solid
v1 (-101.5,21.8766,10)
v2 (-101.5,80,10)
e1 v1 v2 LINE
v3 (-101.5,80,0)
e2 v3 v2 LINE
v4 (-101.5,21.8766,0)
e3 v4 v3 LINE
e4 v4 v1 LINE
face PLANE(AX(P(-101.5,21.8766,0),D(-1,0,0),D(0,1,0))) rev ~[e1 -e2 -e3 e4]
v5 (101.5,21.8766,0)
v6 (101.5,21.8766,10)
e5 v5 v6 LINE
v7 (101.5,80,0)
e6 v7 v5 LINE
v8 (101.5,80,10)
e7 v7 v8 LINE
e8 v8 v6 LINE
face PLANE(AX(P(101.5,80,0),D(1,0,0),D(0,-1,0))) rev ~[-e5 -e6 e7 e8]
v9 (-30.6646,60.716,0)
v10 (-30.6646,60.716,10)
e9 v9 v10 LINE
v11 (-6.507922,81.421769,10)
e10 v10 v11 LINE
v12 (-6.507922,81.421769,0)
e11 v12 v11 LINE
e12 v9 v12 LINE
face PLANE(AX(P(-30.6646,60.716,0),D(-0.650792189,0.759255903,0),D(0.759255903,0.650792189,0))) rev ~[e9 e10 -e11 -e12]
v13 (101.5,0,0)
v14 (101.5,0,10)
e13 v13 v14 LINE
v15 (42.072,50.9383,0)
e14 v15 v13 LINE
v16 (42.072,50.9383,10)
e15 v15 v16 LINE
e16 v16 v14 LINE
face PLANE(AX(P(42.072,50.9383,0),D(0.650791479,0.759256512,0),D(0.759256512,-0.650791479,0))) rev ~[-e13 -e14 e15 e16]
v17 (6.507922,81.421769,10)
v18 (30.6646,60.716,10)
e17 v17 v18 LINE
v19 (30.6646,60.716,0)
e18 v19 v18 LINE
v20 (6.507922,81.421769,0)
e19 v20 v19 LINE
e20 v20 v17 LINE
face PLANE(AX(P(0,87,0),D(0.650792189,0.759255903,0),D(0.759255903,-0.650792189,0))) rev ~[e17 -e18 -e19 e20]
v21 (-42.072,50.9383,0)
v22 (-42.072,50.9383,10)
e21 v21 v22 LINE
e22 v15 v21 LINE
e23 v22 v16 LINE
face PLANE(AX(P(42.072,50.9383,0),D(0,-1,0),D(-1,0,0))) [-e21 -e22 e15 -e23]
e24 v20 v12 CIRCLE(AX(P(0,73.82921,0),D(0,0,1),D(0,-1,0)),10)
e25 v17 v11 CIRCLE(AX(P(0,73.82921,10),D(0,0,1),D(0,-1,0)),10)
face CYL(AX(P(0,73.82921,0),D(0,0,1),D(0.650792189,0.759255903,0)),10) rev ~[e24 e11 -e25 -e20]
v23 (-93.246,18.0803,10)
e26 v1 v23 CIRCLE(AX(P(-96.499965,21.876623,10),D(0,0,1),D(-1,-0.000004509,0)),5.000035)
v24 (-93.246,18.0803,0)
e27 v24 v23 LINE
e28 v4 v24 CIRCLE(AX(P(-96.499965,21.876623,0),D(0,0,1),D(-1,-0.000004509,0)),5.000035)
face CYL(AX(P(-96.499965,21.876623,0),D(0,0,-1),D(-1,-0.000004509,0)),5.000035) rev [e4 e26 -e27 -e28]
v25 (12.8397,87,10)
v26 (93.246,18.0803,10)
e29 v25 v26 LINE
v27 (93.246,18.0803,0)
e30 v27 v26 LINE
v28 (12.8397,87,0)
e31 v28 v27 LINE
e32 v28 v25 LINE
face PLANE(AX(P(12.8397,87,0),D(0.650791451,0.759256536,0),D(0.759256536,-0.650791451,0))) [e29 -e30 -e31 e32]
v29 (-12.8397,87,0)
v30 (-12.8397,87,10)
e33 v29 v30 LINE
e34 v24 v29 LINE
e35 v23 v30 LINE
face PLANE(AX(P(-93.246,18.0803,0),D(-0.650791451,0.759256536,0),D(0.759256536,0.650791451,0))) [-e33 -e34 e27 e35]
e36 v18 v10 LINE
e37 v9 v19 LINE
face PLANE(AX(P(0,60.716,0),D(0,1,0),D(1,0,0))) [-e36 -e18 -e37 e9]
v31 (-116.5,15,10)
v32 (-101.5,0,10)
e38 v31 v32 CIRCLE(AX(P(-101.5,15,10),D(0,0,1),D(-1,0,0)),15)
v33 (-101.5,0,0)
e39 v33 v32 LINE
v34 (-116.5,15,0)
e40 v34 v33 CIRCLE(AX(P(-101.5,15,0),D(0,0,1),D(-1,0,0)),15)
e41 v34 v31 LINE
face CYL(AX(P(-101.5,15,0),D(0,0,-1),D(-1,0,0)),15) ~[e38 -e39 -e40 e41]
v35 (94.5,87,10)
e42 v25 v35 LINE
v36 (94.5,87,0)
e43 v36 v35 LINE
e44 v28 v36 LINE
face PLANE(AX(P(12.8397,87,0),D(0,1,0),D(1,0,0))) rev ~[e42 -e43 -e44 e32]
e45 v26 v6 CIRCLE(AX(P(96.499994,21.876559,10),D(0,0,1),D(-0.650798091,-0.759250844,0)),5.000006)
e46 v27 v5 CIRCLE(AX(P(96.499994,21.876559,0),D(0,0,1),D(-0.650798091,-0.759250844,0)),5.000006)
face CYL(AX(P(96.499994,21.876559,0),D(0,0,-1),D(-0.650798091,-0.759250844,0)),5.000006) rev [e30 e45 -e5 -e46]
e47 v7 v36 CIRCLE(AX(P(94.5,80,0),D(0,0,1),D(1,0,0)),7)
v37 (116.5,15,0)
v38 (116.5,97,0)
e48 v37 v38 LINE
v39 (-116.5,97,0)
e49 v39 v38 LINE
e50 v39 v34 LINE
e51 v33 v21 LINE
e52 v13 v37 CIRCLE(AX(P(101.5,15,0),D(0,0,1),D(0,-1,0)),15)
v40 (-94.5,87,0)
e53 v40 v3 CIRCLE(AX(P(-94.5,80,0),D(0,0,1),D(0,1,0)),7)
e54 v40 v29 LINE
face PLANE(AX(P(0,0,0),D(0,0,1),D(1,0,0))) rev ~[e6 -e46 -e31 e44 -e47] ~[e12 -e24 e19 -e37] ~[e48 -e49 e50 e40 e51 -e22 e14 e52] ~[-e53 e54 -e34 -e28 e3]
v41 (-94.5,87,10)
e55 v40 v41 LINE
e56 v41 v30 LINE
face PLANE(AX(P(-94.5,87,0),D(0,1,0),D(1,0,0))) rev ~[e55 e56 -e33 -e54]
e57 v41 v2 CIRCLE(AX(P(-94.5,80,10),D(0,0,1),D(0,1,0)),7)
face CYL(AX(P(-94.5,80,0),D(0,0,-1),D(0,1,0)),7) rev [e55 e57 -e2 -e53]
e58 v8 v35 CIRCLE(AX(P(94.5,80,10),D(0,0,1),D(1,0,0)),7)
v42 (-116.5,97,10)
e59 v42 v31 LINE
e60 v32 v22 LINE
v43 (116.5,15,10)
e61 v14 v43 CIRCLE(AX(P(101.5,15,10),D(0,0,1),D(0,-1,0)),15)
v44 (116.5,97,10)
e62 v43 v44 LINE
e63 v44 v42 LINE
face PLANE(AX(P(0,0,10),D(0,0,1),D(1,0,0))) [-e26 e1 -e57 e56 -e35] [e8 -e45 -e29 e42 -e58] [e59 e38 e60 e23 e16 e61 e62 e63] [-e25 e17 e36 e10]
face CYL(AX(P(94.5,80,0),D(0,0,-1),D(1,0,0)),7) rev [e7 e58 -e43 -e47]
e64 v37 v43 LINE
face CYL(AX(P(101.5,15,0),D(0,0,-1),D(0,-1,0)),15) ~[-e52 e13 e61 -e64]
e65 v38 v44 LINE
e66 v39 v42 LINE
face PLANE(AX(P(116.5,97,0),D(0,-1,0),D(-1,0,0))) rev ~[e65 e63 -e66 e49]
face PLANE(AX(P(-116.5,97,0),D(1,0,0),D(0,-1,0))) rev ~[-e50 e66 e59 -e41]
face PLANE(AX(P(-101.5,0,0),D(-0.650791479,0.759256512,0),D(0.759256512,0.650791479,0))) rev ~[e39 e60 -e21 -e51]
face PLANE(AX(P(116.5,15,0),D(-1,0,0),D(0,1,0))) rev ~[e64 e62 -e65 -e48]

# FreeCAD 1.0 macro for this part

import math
import FreeCAD as App
import Part
import Sketcher
from FreeCAD import Vector
Q = App.Units.Quantity


def edges_at(feature, points):
    """Names of the edges that pass closest to the given points."""
    edges = feature.Shape.Edges
    near = lambda p: min(range(len(edges)), key=lambda i: edges[i].distToShape(Part.Vertex(*p))[0])
    return sorted({f"Edge{near(p) + 1}" for p in points})


def add_polygon(sketch, points):
    """Adds a closed chain of lines whose ends are joined by coincident constraints."""
    first, n = sketch.GeometryCount, len(points)
    for a, b in zip(points, points[1:] + points[:1]):
        sketch.addGeometry(Part.LineSegment(App.Vector(*a, 0), App.Vector(*b, 0)), False)
    for i in range(n):
        sketch.addConstraint(Sketcher.Constraint("Coincident", first + i, 2, first + (i + 1) % n, 1))

doc = App.newDocument("Part")
body = doc.addObject("PartDesign::Body", "Body")

sketch1 = body.newObject("Sketcher::SketchObject", "Sketch")
sketch1.AttachmentSupport = (doc.getObject("XY_Plane"), [""])
sketch1.MapMode = "FlatFace"
sketch1.addGeometry(Part.ArcOfCircle(Part.Circle(Vector(101.5, 15, 0), Vector(0, 0, 1), 15), math.radians(-90), math.radians(0)), False)
sketch1.addGeometry(Part.LineSegment(Vector(116.5, 15, 0), Vector(116.5, 97, 0)), False)
sketch1.addGeometry(Part.LineSegment(Vector(116.5, 97, 0), Vector(-116.5, 97, 0)), False)
sketch1.addGeometry(Part.LineSegment(Vector(-116.5, 97, 0), Vector(-116.5, 15, 0)), False)
sketch1.addGeometry(Part.ArcOfCircle(Part.Circle(Vector(-101.5, 15, 0), Vector(0, 0, 1), 15), math.radians(180), math.radians(270)), False)
sketch1.addGeometry(Part.LineSegment(Vector(-101.5, 0, 0), Vector(-42.072, 50.9383, 0)), False)
sketch1.addGeometry(Part.LineSegment(Vector(-42.072, 50.9383, 0), Vector(42.072, 50.9383, 0)), False)
sketch1.addGeometry(Part.LineSegment(Vector(42.072, 50.9383, 0), Vector(101.5, 0, 0)), False)
add_polygon(sketch1, [(30.6646, 60.716), (-30.6646, 60.716), (0, 87)])
sketch1.addGeometry(Part.ArcOfCircle(Part.Circle(Vector(94.5, 80, 0), Vector(0, 0, 1), 7), math.radians(0), math.radians(90)), False)
sketch1.addGeometry(Part.LineSegment(Vector(101.5, 80, 0), Vector(101.5, 21.8766, 0)), False)
sketch1.addGeometry(Part.ArcOfCircle(Part.Circle(Vector(96.5, 21.8766, 0), Vector(0, 0, 1), 5.000041), math.radians(-130.601543), math.radians(0)), False)
sketch1.addGeometry(Part.LineSegment(Vector(93.246, 18.0803, 0), Vector(12.8397, 87, 0)), False)
sketch1.addGeometry(Part.LineSegment(Vector(12.8397, 87, 0), Vector(94.5, 87, 0)), False)
sketch1.addGeometry(Part.ArcOfCircle(Part.Circle(Vector(-94.5, 80, 0), Vector(0, 0, 1), 7), math.radians(90), math.radians(180)), False)
sketch1.addGeometry(Part.LineSegment(Vector(-94.5, 87, 0), Vector(-12.8397, 87, 0)), False)
sketch1.addGeometry(Part.LineSegment(Vector(-12.8397, 87, 0), Vector(-93.246, 18.0803, 0)), False)
sketch1.addGeometry(Part.ArcOfCircle(Part.Circle(Vector(-96.5, 21.8766, 0), Vector(0, 0, 1), 5), math.radians(180), math.radians(310.601543)), False)
sketch1.addGeometry(Part.LineSegment(Vector(-101.5, 21.8766, 0), Vector(-101.5, 80, 0)), False)
sketch1.addConstraint(Sketcher.Constraint("Tangent", 0, 2, 1, 1))
sketch1.addConstraint(Sketcher.Constraint("Coincident", 1, 2, 2, 1))
sketch1.addConstraint(Sketcher.Constraint("Coincident", 2, 2, 3, 1))
sketch1.addConstraint(Sketcher.Constraint("Tangent", 3, 2, 4, 1))
sketch1.addConstraint(Sketcher.Constraint("Coincident", 4, 2, 5, 1))
sketch1.addConstraint(Sketcher.Constraint("Coincident", 5, 2, 6, 1))
sketch1.addConstraint(Sketcher.Constraint("Coincident", 6, 2, 7, 1))
sketch1.addConstraint(Sketcher.Constraint("Coincident", 7, 2, 0, 1))
sketch1.addConstraint(Sketcher.Constraint("Tangent", 11, 1, 12, 1))
sketch1.addConstraint(Sketcher.Constraint("Tangent", 12, 2, 13, 2))
sketch1.addConstraint(Sketcher.Constraint("Tangent", 13, 1, 14, 1))
sketch1.addConstraint(Sketcher.Constraint("Coincident", 14, 2, 15, 1))
sketch1.addConstraint(Sketcher.Constraint("Tangent", 15, 2, 11, 2))
sketch1.addConstraint(Sketcher.Constraint("Tangent", 16, 1, 17, 1))
sketch1.addConstraint(Sketcher.Constraint("Coincident", 17, 2, 18, 1))
sketch1.addConstraint(Sketcher.Constraint("Tangent", 18, 2, 19, 2))
sketch1.addConstraint(Sketcher.Constraint("Tangent", 19, 1, 20, 1))
sketch1.addConstraint(Sketcher.Constraint("Tangent", 20, 2, 16, 2))
sketch1.addConstraint(Sketcher.Constraint("Vertical", 1))
sketch1.addConstraint(Sketcher.Constraint("Horizontal", 2))
sketch1.addConstraint(Sketcher.Constraint("Vertical", 3))
sketch1.addConstraint(Sketcher.Constraint("Horizontal", 6))
sketch1.addConstraint(Sketcher.Constraint("Horizontal", 8))
sketch1.addConstraint(Sketcher.Constraint("Vertical", 12))
sketch1.addConstraint(Sketcher.Constraint("Horizontal", 15))
sketch1.addConstraint(Sketcher.Constraint("Horizontal", 17))
sketch1.addConstraint(Sketcher.Constraint("Vertical", 20))
sketch1.addConstraint(Sketcher.Constraint("Equal", 0, 4))
sketch1.addConstraint(Sketcher.Constraint("Equal", 11, 16))
sketch1.addConstraint(Sketcher.Constraint("Equal", 13, 19))
sketch1.addConstraint(Sketcher.Constraint("Symmetric", 4, 2, 7, 2, -1, 1))
sketch1.addConstraint(Sketcher.Constraint("Symmetric", 0, 3, 4, 3, -2))
sketch1.addConstraint(Sketcher.Constraint("Symmetric", 11, 3, 16, 3, -2))
sketch1.addConstraint(Sketcher.Constraint("Symmetric", 13, 1, 18, 2, -2))
sketch1.addConstraint(Sketcher.Constraint("PointOnObject", 9, 2, -2))
sketch1.addConstraint(Sketcher.Constraint("Parallel", 5, 9))
sketch1.addConstraint(Sketcher.Constraint("Parallel", 7, 10))
sketch1.addConstraint(Sketcher.Constraint("Parallel", 10, 14))
sketch1.addConstraint(Sketcher.Constraint("Parallel", 9, 18))
sketch1.addConstraint(Sketcher.Constraint("Horizontal", 9, 2, 14, 2))
sketch1.addConstraint(Sketcher.Constraint("Vertical", 0, 3, 7, 2))
sketch1.addConstraint(Sketcher.Constraint("Vertical", 7, 2, 11, 1))
sketch1.addConstraint(Sketcher.Constraint("Radius", 0, Q("15 mm")))
sketch1.addConstraint(Sketcher.Constraint("Radius", 11, Q("7 mm")))
sketch1.addConstraint(Sketcher.Constraint("Radius", 13, Q("5 mm")))
sketch1.addConstraint(Sketcher.Constraint("DistanceX", 2, 2, 2, 1, Q("233 mm")))
sketch1.addConstraint(Sketcher.Constraint("DistanceY", -1, 1, 1, 2, Q("97 mm")))
sketch1.addConstraint(Sketcher.Constraint("DistanceY", -1, 1, 11, 3, Q("80 mm")))
sketch1.addConstraint(Sketcher.Constraint("DistanceX", 6, 1, 6, 2, Q("84.144 mm")))
sketch1.addConstraint(Sketcher.Constraint("DistanceX", 8, 2, 8, 1, Q("61.3292 mm")))
sketch1.addConstraint(Sketcher.Constraint("DistanceX", 15, 1, 15, 2, Q("81.6603 mm")))
sketch1.addConstraint(Sketcher.Constraint("DistanceY", 12, 2, 12, 1, Q("58.1234 mm")))
pad1 = body.newObject("PartDesign::Pad", "Pad")
pad1.Profile = sketch1
pad1.Length = 10
doc.recompute()

fillet = body.newObject("PartDesign::Fillet", "Fillet")
fillet.Base = (pad1, edges_at(pad1, [(0, 87, 5)]))
fillet.Radius = 10

doc.recompute()
